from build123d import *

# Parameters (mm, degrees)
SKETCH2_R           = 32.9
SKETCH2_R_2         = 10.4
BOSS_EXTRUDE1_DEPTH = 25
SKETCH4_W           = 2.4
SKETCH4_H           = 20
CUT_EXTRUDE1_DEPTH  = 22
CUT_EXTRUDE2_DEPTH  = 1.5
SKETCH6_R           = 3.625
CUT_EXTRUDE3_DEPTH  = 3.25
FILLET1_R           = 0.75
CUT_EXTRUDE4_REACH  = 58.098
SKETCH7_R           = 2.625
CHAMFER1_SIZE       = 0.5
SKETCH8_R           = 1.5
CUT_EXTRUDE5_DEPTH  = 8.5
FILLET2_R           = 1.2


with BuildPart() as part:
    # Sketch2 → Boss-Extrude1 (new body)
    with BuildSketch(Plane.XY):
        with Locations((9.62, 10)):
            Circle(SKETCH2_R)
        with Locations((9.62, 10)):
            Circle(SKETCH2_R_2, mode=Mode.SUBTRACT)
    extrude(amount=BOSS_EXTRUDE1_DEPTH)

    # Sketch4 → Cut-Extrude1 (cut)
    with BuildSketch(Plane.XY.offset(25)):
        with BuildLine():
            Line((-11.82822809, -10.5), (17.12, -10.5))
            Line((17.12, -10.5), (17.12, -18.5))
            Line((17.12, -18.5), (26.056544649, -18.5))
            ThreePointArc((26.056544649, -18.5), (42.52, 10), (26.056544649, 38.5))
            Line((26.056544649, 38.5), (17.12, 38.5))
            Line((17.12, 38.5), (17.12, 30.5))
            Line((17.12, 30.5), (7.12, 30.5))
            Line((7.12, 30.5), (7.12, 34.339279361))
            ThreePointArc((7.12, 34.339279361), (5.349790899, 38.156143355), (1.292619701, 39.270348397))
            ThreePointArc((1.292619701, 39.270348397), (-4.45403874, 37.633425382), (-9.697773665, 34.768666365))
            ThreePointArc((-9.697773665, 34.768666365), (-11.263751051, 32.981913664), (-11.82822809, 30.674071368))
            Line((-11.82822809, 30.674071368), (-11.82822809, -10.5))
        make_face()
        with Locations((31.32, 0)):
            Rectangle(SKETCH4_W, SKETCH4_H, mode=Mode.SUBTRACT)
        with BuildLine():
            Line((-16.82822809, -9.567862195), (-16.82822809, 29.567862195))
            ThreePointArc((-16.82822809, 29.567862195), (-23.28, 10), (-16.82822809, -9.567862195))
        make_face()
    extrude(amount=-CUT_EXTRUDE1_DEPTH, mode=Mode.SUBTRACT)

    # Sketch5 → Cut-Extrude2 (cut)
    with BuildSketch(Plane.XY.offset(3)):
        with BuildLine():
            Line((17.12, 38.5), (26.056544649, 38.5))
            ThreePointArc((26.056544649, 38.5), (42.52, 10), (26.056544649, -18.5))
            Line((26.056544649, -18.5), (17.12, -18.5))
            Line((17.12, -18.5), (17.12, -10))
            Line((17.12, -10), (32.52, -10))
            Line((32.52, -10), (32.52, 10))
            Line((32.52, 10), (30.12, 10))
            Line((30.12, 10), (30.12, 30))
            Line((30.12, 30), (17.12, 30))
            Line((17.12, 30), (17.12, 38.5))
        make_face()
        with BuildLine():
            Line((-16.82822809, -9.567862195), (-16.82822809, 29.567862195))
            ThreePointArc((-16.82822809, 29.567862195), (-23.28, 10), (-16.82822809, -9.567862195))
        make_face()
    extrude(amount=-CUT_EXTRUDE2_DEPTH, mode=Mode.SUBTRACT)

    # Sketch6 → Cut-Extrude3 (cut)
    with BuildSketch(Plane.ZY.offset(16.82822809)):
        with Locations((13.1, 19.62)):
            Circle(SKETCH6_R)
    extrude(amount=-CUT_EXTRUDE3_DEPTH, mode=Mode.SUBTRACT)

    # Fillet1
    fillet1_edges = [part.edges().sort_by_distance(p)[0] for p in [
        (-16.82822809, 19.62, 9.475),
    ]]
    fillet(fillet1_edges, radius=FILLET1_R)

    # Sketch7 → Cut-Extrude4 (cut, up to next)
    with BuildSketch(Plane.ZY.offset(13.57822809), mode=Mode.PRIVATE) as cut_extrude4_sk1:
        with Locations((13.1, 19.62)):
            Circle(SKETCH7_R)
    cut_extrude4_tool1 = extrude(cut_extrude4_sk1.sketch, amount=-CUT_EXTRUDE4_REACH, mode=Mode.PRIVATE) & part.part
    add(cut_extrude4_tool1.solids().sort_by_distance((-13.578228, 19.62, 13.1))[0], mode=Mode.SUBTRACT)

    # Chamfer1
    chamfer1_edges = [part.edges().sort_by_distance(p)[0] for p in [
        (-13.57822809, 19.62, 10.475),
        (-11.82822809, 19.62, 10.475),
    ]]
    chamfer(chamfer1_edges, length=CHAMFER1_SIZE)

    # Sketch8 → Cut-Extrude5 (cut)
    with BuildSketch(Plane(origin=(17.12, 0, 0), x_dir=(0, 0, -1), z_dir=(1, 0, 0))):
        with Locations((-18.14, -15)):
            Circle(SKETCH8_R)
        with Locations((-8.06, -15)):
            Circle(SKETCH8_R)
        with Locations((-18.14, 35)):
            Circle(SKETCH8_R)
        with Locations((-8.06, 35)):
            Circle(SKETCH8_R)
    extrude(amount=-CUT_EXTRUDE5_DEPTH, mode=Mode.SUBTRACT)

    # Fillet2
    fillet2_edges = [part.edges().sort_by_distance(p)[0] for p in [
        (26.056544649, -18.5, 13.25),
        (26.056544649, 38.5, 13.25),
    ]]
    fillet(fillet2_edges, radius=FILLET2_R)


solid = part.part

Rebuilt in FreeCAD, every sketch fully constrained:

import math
import FreeCAD as App
import Part
import Sketcher
from FreeCAD import Vector


def edges_at(feature, points):
    """Names of the edges that pass closest to the given points."""
    edges = feature.Shape.Edges
    near = lambda p: min(range(len(edges)), key=lambda i: edges[i].distToShape(Part.Vertex(*p))[0])
    return sorted({f"Edge{near(p) + 1}" for p in points})


def add_polygon(sketch, points):
    """Adds a closed chain of lines whose ends are joined by coincident constraints."""
    first, n = sketch.GeometryCount, len(points)
    for a, b in zip(points, points[1:] + points[:1]):
        sketch.addGeometry(Part.LineSegment(App.Vector(*a, 0), App.Vector(*b, 0)), False)
    for i in range(n):
        sketch.addConstraint(Sketcher.Constraint("Coincident", first + i, 2, first + (i + 1) % n, 1))

doc = App.newDocument("Part")
body = doc.addObject("PartDesign::Body", "Body")

sketch1 = body.newObject("Sketcher::SketchObject", "Sketch")
sketch1.AttachmentSupport = (doc.getObject("XY_Plane"), [""])
sketch1.MapMode = "FlatFace"
sketch1.addGeometry([
    Part.Circle(Vector(9.62, 10, 0), Vector(0, 0, 1), 32.9),
    Part.Circle(Vector(9.62, 10, 0), Vector(0, 0, 1), 10.4),
], False)
sketch1.addConstraint([
    Sketcher.Constraint("Coincident", 1, 3, 0, 3),
    Sketcher.Constraint("Diameter", 0, 65.8),
    Sketcher.Constraint("Diameter", 1, 20.8),
    Sketcher.Constraint("DistanceY", -1, 1, 0, 3, 10.0),
    Sketcher.Constraint("DistanceX", -1, 1, 0, 3, 9.62),
])
pad1 = body.newObject("PartDesign::Pad", "Pad")
pad1.Profile = sketch1
pad1.Length = 25

sketch2 = body.newObject("Sketcher::SketchObject", "Sketch001")
sketch2.AttachmentSupport = (doc.getObject("XY_Plane"), [""])
sketch2.MapMode = "FlatFace"
sketch2.AttachmentOffset = App.Placement(Vector(0, 0, 25), App.Rotation())
sketch2.addGeometry(Part.LineSegment(Vector(-11.828228, -10.5, 0), Vector(17.12, -10.5, 0)), False)
sketch2.addGeometry(Part.LineSegment(Vector(17.12, -10.5, 0), Vector(17.12, -18.5, 0)), False)
sketch2.addGeometry(Part.LineSegment(Vector(17.12, -18.5, 0), Vector(26.056545, -18.5, 0)), False)
sketch2.addGeometry(Part.ArcOfCircle(Part.Circle(Vector(9.62, 10, 0), Vector(0, 0, 1), 32.9), math.radians(-60.027054), math.radians(60.027054)), False)
sketch2.addGeometry(Part.LineSegment(Vector(26.056545, 38.5, 0), Vector(17.12, 38.5, 0)), False)
sketch2.addGeometry(Part.LineSegment(Vector(17.12, 38.5, 0), Vector(17.12, 30.5, 0)), False)
sketch2.addGeometry(Part.LineSegment(Vector(17.12, 30.5, 0), Vector(7.12, 30.5, 0)), False)
sketch2.addGeometry(Part.LineSegment(Vector(7.12, 30.5, 0), Vector(7.12, 34.339279, 0)), False)
sketch2.addGeometry(Part.ArcOfCircle(Part.Circle(Vector(2.12, 34.339279, 0), Vector(0, 0, 1), 5), math.radians(0), math.radians(99.524891)), False)
sketch2.addGeometry(Part.ArcOfCircle(Part.Circle(Vector(5.745362, 12.732639, 0), Vector(0, 0, 1), 26.908678), math.radians(99.524891), math.radians(125.023273)), False)
sketch2.addGeometry(Part.ArcOfCircle(Part.Circle(Vector(-6.828228, 30.674071, 0), Vector(0, 0, 1), 5), math.radians(125.023273), math.radians(180)), False)
sketch2.addGeometry(Part.LineSegment(Vector(-11.828228, 30.674071, 0), Vector(-11.828228, -10.5, 0)), False)
add_polygon(sketch2, [(32.52, -10), (30.12, -10), (30.12, 10), (32.52, 10)])
sketch2.addGeometry(Part.LineSegment(Vector(-16.828228, -9.567862, 0), Vector(-16.828228, 29.567862, 0)), False)
sketch2.addGeometry(Part.ArcOfCircle(Part.Circle(Vector(9.62, 10, 0), Vector(0, 0, 1), 32.9), math.radians(143.503916), math.radians(216.496084)), False)
sketch2.addConstraint([
    Sketcher.Constraint("Coincident", 0, 2, 1, 1),
    Sketcher.Constraint("Coincident", 1, 2, 2, 1),
    Sketcher.Constraint("Coincident", 2, 2, 3, 1),
    Sketcher.Constraint("Coincident", 3, 2, 4, 1),
    Sketcher.Constraint("Coincident", 4, 2, 5, 1),
    Sketcher.Constraint("Coincident", 5, 2, 6, 1),
    Sketcher.Constraint("Coincident", 6, 2, 7, 1),
    Sketcher.Constraint("Tangent", 7, 2, 8, 1),
    Sketcher.Constraint("Tangent", 8, 2, 9, 1),
    Sketcher.Constraint("Tangent", 9, 2, 10, 1),
    Sketcher.Constraint("Tangent", 10, 2, 11, 1),
    Sketcher.Constraint("Coincident", 11, 2, 0, 1),
    Sketcher.Constraint("Coincident", 16, 1, 17, 2),
    Sketcher.Constraint("Coincident", 17, 1, 16, 2),
    Sketcher.Constraint("Horizontal", 0),
    Sketcher.Constraint("Vertical", 1),
    Sketcher.Constraint("Horizontal", 2),
    Sketcher.Constraint("Horizontal", 4),
    Sketcher.Constraint("Vertical", 5),
    Sketcher.Constraint("Horizontal", 6),
    Sketcher.Constraint("Vertical", 7),
    Sketcher.Constraint("Vertical", 11),
    Sketcher.Constraint("Horizontal", 12),
    Sketcher.Constraint("Vertical", 13),
    Sketcher.Constraint("Horizontal", 14),
    Sketcher.Constraint("Vertical", 15),
    Sketcher.Constraint("Vertical", 16),
    Sketcher.Constraint("Coincident", 17, 3, 3, 3),
    Sketcher.Constraint("Equal", 8, 10),
    Sketcher.Constraint("Equal", 3, 17),
    Sketcher.Constraint("Horizontal", 17, 3, 13, 2),
    Sketcher.Constraint("Vertical", 2, 2, 3, 2),
    Sketcher.Constraint("Vertical", 1, 2, 4, 2),
    Sketcher.Constraint("Equal", 1, 5),
    Sketcher.Constraint("Radius", 8, 5.0),
    Sketcher.Constraint("Radius", 3, 32.9),
    Sketcher.Constraint("DistanceX", 6, 2, 6, 1, 10.0),
    Sketcher.Constraint("DistanceY", 1, 2, 1, 1, 8.0),
    Sketcher.Constraint("DistanceY", 13, 1, 13, 2, 20.0),
    Sketcher.Constraint("DistanceX", 12, 2, 12, 1, 2.4),
    Sketcher.Constraint("DistanceY", -1, 1, 3, 3, 10.0),
    Sketcher.Constraint("DistanceX", 0, 2, 12, 2, 13.0),
    Sketcher.Constraint("DistanceX", 16, 1, 11, 2, 5.0),
    Sketcher.Constraint("DistanceY", 0, 2, -1, 1, 10.5),
    Sketcher.Constraint("DistanceX", 8, 3, 3, 3, 7.5),
    Sketcher.Constraint("DistanceX", -1, 1, 3, 3, 9.62),
    Sketcher.Constraint("Radius", 9, 26.908678),
    Sketcher.Constraint("DistanceX", 0, 1, 0, 2, 28.948228),
    Sketcher.Constraint("DistanceY", 7, 1, 7, 2, 3.839279),
    Sketcher.Constraint("DistanceY", 11, 2, 11, 1, 41.174071),
])
pocket1 = body.newObject("PartDesign::Pocket", "Pocket")
pocket1.Profile = sketch2
pocket1.Length = 22

sketch3 = body.newObject("Sketcher::SketchObject", "Sketch002")
sketch3.AttachmentSupport = (doc.getObject("XY_Plane"), [""])
sketch3.MapMode = "FlatFace"
sketch3.AttachmentOffset = App.Placement(Vector(0, 0, 3), App.Rotation())
sketch3.addGeometry([
    Part.LineSegment(Vector(26.056545, 38.5, 0), Vector(17.12, 38.5, 0)),
    Part.LineSegment(Vector(17.12, 38.5, 0), Vector(17.12, 30, 0)),
    Part.LineSegment(Vector(17.12, 30, 0), Vector(30.12, 30, 0)),
    Part.LineSegment(Vector(30.12, 30, 0), Vector(30.12, 10, 0)),
    Part.LineSegment(Vector(30.12, 10, 0), Vector(32.52, 10, 0)),
    Part.LineSegment(Vector(32.52, 10, 0), Vector(32.52, -10, 0)),
    Part.LineSegment(Vector(32.52, -10, 0), Vector(17.12, -10, 0)),
    Part.LineSegment(Vector(17.12, -10, 0), Vector(17.12, -18.5, 0)),
    Part.LineSegment(Vector(17.12, -18.5, 0), Vector(26.056545, -18.5, 0)),
    Part.ArcOfCircle(Part.Circle(Vector(9.62, 10, 0), Vector(0, 0, 1), 32.9), math.radians(-60.027054), math.radians(60.027054)),
    Part.LineSegment(Vector(-16.828228, -9.567862, 0), Vector(-16.828228, 29.567862, 0)),
    Part.ArcOfCircle(Part.Circle(Vector(9.62, 10, 0), Vector(0, 0, 1), 32.9), math.radians(143.503916), math.radians(216.496084)),
], False)
sketch3.addConstraint([
    Sketcher.Constraint("Coincident", 0, 2, 1, 1),
    Sketcher.Constraint("Coincident", 1, 2, 2, 1),
    Sketcher.Constraint("Coincident", 2, 2, 3, 1),
    Sketcher.Constraint("Coincident", 3, 2, 4, 1),
    Sketcher.Constraint("Coincident", 4, 2, 5, 1),
    Sketcher.Constraint("Coincident", 5, 2, 6, 1),
    Sketcher.Constraint("Coincident", 6, 2, 7, 1),
    Sketcher.Constraint("Coincident", 7, 2, 8, 1),
    Sketcher.Constraint("Coincident", 8, 2, 9, 1),
    Sketcher.Constraint("Coincident", 9, 2, 0, 1),
    Sketcher.Constraint("Coincident", 10, 1, 11, 2),
    Sketcher.Constraint("Coincident", 11, 1, 10, 2),
    Sketcher.Constraint("Horizontal", 0),
    Sketcher.Constraint("Vertical", 1),
    Sketcher.Constraint("Horizontal", 2),
    Sketcher.Constraint("Vertical", 3),
    Sketcher.Constraint("Horizontal", 4),
    Sketcher.Constraint("Vertical", 5),
    Sketcher.Constraint("Horizontal", 6),
    Sketcher.Constraint("Vertical", 7),
    Sketcher.Constraint("Horizontal", 8),
    Sketcher.Constraint("Vertical", 10),
    Sketcher.Constraint("Coincident", 11, 3, 9, 3),
    Sketcher.Constraint("Equal", 9, 11),
    Sketcher.Constraint("Horizontal", 11, 3, 3, 2),
    Sketcher.Constraint("Vertical", 1, 2, 6, 2),
    Sketcher.Constraint("Vertical", 8, 2, 9, 2),
    Sketcher.Constraint("Equal", 3, 5),
    Sketcher.Constraint("Radius", 9, 32.9),
    Sketcher.Constraint("DistanceX", 2, 1, 2, 2, 13.0),
    Sketcher.Constraint("DistanceY", 3, 2, 3, 1, 20.0),
    Sketcher.Constraint("DistanceX", 4, 1, 4, 2, 2.4),
    Sketcher.Constraint("DistanceY", 1, 2, 1, 1, 8.5),
    Sketcher.Constraint("DistanceY", -1, 1, 9, 3, 10.0),
    Sketcher.Constraint("DistanceX", 9, 3, 0, 2, 7.5),
    Sketcher.Constraint("DistanceX", -1, 1, 9, 3, 9.62),
    Sketcher.Constraint("DistanceY", 10, 1, 10, 2, 39.135724),
])
pocket2 = body.newObject("PartDesign::Pocket", "Pocket001")
pocket2.Profile = sketch3
pocket2.Length = 1.5

sketch4 = body.newObject("Sketcher::SketchObject", "Sketch003")
sketch4.AttachmentSupport = (doc.getObject("YZ_Plane"), [""])
sketch4.MapMode = "FlatFace"
sketch4.AttachmentOffset = App.Placement(Vector(0, 0, -16.828228), App.Rotation())
sketch4.addGeometry(Part.Circle(Vector(19.62, 13.1, 0), Vector(0, 0, 1), 3.625), False)
sketch4.addConstraint([
    Sketcher.Constraint("Diameter", 0, 7.25),
    Sketcher.Constraint("DistanceY", -1, 1, 0, 3, 13.1),
    Sketcher.Constraint("DistanceX", -1, 1, 0, 3, 19.62),
])
pocket3 = body.newObject("PartDesign::Pocket", "Pocket002")
pocket3.Profile = sketch4
pocket3.Length = 3.25
pocket3.Reversed = True
doc.recompute()

fillet = body.newObject("PartDesign::Fillet", "Fillet")
fillet.Base = (pocket3, edges_at(pocket3, [(-16.828, 19.62, 9.475)]))
fillet.Radius = 0.75

sketch5 = body.newObject("Sketcher::SketchObject", "Sketch004")
sketch5.AttachmentSupport = (doc.getObject("YZ_Plane"), [""])
sketch5.MapMode = "FlatFace"
sketch5.AttachmentOffset = App.Placement(Vector(0, 0, -13.578228), App.Rotation())
sketch5.addGeometry(Part.Circle(Vector(19.62, 13.1, 0), Vector(0, 0, 1), 2.625), False)
sketch5.addConstraint([
    Sketcher.Constraint("Diameter", 0, 5.25),
    Sketcher.Constraint("DistanceY", -1, 1, 0, 3, 13.1),
    Sketcher.Constraint("DistanceX", -1, 1, 0, 3, 19.62),
])
pocket4 = body.newObject("PartDesign::Pocket", "Pocket003")
pocket4.Profile = sketch5
pocket4.Type = "UpToFirst"
pocket4.Reversed = True
doc.recompute()

chamfer = body.newObject("PartDesign::Chamfer", "Chamfer")
chamfer.Base = (pocket4, edges_at(pocket4, [(-13.578, 19.62, 10.475), (-11.828, 19.62, 10.475)]))
chamfer.Size = 0.5

sketch6 = body.newObject("Sketcher::SketchObject", "Sketch005")
sketch6.AttachmentSupport = (doc.getObject("YZ_Plane"), [""])
sketch6.MapMode = "FlatFace"
sketch6.AttachmentOffset = App.Placement(Vector(0, 0, 17.12), App.Rotation())
sketch6.addGeometry([
    Part.Circle(Vector(-15, 18.14, 0), Vector(0, 0, 1), 1.5),
    Part.Circle(Vector(-15, 8.06, 0), Vector(0, 0, 1), 1.5),
    Part.Circle(Vector(35, 18.14, 0), Vector(0, 0, 1), 1.5),
    Part.Circle(Vector(35, 8.06, 0), Vector(0, 0, 1), 1.5),
], False)
sketch6.addConstraint([
    Sketcher.Constraint("Equal", 0, 1),
    Sketcher.Constraint("Equal", 1, 2),
    Sketcher.Constraint("Equal", 2, 3),
    Sketcher.Constraint("Horizontal", 0, 3, 2, 3),
    Sketcher.Constraint("Horizontal", 1, 3, 3, 3),
    Sketcher.Constraint("Vertical", 0, 3, 1, 3),
    Sketcher.Constraint("Vertical", 2, 3, 3, 3),
    Sketcher.Constraint("Diameter", 0, 3.0),
    Sketcher.Constraint("DistanceX", 0, 3, -1, 1, 15.0),
    Sketcher.Constraint("DistanceX", -1, 1, 2, 3, 35.0),
    Sketcher.Constraint("DistanceY", -1, 1, 0, 3, 18.14),
    Sketcher.Constraint("DistanceY", -1, 1, 1, 3, 8.06),
])
pocket5 = body.newObject("PartDesign::Pocket", "Pocket004")
pocket5.Profile = sketch6
pocket5.Length = 8.5
doc.recompute()

fillet2 = body.newObject("PartDesign::Fillet", "Fillet001")
fillet2.Base = (pocket5, edges_at(pocket5, [(26.057, -18.5, 13.25), (26.057, 38.5, 13.25)]))
fillet2.Radius = 1.2

doc.recompute()
